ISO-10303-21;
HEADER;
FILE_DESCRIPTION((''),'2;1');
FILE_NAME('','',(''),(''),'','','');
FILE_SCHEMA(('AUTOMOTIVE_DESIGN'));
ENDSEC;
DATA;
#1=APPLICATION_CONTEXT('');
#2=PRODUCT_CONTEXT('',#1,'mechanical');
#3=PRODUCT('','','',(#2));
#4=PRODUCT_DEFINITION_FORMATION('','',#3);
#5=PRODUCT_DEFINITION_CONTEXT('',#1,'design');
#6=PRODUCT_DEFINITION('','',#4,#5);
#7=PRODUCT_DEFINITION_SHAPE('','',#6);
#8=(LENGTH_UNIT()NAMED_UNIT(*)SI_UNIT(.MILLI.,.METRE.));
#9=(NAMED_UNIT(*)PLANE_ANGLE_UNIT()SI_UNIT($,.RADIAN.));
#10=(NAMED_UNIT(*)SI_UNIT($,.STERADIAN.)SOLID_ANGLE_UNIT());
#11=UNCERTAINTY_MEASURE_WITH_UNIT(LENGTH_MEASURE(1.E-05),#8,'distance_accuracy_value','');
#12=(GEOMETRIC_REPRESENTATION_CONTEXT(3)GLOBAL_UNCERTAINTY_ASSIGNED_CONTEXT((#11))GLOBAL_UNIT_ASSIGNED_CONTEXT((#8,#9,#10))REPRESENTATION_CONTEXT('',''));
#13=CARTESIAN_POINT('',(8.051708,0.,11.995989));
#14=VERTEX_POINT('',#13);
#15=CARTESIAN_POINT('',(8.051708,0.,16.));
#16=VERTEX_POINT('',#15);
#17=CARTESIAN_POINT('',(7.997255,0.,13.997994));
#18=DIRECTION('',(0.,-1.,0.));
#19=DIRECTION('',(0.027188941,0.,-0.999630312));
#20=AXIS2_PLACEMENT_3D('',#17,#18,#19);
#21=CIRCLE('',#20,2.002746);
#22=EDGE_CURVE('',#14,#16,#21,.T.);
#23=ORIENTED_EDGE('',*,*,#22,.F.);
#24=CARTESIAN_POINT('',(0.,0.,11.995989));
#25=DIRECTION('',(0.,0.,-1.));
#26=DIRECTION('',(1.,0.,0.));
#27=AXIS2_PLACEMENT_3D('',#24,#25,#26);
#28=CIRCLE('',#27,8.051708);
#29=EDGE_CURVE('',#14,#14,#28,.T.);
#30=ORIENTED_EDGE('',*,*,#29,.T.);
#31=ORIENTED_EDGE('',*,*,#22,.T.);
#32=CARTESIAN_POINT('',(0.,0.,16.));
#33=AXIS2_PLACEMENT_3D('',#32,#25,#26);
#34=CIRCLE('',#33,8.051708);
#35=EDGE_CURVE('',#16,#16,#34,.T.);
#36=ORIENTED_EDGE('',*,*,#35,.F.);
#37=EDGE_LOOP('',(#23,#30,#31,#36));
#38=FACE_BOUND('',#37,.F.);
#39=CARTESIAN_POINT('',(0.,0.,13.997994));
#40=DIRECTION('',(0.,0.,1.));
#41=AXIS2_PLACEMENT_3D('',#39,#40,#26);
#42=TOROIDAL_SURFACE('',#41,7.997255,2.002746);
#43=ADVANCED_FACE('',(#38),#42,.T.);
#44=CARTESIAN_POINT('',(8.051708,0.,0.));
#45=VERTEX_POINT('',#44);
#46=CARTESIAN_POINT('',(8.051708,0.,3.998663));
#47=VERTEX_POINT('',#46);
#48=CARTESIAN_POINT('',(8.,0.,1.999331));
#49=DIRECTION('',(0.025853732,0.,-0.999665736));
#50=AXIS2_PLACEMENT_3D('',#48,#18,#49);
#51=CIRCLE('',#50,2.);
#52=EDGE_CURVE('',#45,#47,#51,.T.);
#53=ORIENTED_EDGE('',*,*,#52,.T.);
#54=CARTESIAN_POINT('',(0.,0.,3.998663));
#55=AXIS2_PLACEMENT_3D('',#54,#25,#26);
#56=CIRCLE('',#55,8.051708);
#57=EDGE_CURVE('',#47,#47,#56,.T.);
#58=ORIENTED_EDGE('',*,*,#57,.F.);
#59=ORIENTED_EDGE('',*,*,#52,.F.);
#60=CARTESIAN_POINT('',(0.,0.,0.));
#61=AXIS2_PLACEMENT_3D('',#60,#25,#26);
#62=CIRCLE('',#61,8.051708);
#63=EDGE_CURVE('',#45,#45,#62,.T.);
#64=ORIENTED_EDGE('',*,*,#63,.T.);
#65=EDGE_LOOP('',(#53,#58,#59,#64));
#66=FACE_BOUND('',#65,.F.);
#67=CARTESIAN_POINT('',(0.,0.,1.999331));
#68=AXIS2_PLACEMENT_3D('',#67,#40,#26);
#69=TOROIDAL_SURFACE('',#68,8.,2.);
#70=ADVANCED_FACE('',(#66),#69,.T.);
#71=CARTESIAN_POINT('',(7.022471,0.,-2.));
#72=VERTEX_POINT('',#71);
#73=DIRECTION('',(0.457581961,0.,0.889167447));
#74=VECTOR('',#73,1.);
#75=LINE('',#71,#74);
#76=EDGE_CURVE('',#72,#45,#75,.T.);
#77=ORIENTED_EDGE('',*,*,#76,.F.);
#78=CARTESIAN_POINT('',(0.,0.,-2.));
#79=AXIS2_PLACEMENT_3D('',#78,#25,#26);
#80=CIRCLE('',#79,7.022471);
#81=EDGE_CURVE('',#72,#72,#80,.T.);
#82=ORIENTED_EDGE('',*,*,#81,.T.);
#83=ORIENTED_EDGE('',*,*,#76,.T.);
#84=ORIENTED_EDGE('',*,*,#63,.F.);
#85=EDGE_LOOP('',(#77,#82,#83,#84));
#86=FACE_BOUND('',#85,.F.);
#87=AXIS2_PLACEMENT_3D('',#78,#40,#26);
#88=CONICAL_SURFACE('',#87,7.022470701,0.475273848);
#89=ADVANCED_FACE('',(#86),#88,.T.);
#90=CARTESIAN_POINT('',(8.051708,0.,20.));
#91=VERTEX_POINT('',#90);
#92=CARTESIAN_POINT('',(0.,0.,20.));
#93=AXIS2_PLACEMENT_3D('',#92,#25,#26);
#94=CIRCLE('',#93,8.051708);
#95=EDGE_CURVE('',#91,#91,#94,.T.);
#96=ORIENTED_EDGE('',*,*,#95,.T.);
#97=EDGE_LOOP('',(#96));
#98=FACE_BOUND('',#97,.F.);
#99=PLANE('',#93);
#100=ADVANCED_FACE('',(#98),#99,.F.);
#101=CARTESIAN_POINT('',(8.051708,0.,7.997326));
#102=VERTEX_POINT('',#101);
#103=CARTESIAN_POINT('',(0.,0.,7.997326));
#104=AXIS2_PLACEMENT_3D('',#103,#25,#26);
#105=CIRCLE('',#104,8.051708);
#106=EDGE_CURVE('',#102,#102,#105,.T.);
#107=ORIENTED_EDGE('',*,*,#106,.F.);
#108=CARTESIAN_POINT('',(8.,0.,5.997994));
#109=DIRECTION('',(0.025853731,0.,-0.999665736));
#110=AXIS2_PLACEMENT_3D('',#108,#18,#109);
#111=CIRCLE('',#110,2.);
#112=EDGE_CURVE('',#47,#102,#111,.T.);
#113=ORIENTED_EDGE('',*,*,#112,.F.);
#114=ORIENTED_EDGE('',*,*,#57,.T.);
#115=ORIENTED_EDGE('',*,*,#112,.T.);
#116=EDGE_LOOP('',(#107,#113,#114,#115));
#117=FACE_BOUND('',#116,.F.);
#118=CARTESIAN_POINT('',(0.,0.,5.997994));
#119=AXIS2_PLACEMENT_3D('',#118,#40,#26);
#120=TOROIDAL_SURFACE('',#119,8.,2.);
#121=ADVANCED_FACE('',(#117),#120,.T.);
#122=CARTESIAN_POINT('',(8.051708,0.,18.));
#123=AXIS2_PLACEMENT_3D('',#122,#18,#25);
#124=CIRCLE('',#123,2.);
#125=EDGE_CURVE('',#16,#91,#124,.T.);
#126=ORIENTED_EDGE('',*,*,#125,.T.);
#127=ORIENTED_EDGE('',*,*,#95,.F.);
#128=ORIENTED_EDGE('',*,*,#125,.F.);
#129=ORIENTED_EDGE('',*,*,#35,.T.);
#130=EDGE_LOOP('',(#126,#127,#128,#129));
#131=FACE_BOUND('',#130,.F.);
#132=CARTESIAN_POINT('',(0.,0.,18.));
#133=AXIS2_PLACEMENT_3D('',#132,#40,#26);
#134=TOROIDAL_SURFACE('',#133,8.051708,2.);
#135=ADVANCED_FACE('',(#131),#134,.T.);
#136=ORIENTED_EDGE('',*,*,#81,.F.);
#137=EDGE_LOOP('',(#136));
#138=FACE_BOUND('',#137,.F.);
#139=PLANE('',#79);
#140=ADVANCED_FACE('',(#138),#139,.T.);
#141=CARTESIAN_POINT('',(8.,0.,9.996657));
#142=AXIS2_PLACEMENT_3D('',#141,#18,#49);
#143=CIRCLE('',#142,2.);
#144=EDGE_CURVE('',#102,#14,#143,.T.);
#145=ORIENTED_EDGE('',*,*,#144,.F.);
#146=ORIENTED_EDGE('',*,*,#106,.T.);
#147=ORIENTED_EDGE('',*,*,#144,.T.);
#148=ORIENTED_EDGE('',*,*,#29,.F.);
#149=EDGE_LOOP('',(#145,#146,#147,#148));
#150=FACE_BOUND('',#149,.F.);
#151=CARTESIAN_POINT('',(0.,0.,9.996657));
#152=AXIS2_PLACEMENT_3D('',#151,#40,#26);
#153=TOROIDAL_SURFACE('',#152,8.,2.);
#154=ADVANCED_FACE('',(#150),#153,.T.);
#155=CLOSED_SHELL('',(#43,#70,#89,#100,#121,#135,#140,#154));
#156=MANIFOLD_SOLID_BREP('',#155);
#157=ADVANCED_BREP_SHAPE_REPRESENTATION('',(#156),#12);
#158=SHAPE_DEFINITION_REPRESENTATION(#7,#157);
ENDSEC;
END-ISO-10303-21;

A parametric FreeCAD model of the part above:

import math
import FreeCAD as App
import Part
import Sketcher
from FreeCAD import Vector
Q = App.Units.Quantity

doc = App.newDocument("Part")
body = doc.addObject("PartDesign::Body", "Body")

sketch1 = body.newObject("Sketcher::SketchObject", "Sketch")
sketch1.AttachmentSupport = (doc.getObject("XZ_Plane"), [""])
sketch1.MapMode = "FlatFace"
sketch1.addGeometry(Part.ArcOfCircle(Part.Circle(Vector(8, 14, 0), Vector(0, 0, 1), 2), math.radians(-88), math.radians(88)), False)
sketch1.addGeometry(Part.ArcOfCircle(Part.Circle(Vector(8.1, 18, 0), Vector(0, 0, 1), 2), math.radians(-90), math.radians(90)), False)
sketch1.addGeometry(Part.LineSegment(Vector(8.1, 20, 0), Vector(0, 20, 0)), False)
sketch1.addGeometry(Part.LineSegment(Vector(0, 20, 0), Vector(0, -2, 0)), False)
sketch1.addGeometry(Part.LineSegment(Vector(0, -2, 0), Vector(7, -2, 0)), False)
sketch1.addGeometry(Part.LineSegment(Vector(7, -2, 0), Vector(8.1, 0, 0)), False)
sketch1.addGeometry(Part.ArcOfCircle(Part.Circle(Vector(8, 2, 0), Vector(0, 0, 1), 2), math.radians(-89), math.radians(89)), False)
sketch1.addGeometry(Part.ArcOfCircle(Part.Circle(Vector(8, 6, 0), Vector(0, 0, 1), 2), math.radians(-89), math.radians(89)), False)
sketch1.addGeometry(Part.ArcOfCircle(Part.Circle(Vector(8, 10, 0), Vector(0, 0, 1), 2), math.radians(-89), math.radians(89)), False)
sketch1.addConstraint(Sketcher.Constraint("Coincident", 0, 2, 1, 1))
sketch1.addConstraint(Sketcher.Constraint("Tangent", 1, 2, 2, 1))
sketch1.addConstraint(Sketcher.Constraint("Coincident", 2, 2, 3, 1))
sketch1.addConstraint(Sketcher.Constraint("Coincident", 3, 2, 4, 1))
sketch1.addConstraint(Sketcher.Constraint("Coincident", 4, 2, 5, 1))
sketch1.addConstraint(Sketcher.Constraint("Coincident", 5, 2, 6, 1))
sketch1.addConstraint(Sketcher.Constraint("Coincident", 6, 2, 7, 1))
sketch1.addConstraint(Sketcher.Constraint("Coincident", 7, 2, 8, 1))
sketch1.addConstraint(Sketcher.Constraint("Coincident", 8, 2, 0, 1))
sketch1.addConstraint(Sketcher.Constraint("Horizontal", 2))
sketch1.addConstraint(Sketcher.Constraint("Vertical", 3))
sketch1.addConstraint(Sketcher.Constraint("Horizontal", 4))
sketch1.addConstraint(Sketcher.Constraint("Equal", 1, 6))
sketch1.addConstraint(Sketcher.Constraint("Equal", 6, 7))
sketch1.addConstraint(Sketcher.Constraint("Equal", 7, 8))
sketch1.addConstraint(Sketcher.Constraint("PointOnObject", 2, 2, -2))
sketch1.addConstraint(Sketcher.Constraint("PointOnObject", 5, 2, -1))
sketch1.addConstraint(Sketcher.Constraint("Vertical", 6, 3, 7, 3))
sketch1.addConstraint(Sketcher.Constraint("Vertical", 7, 3, 8, 3))
sketch1.addConstraint(Sketcher.Constraint("Vertical", 1, 3, 0, 2))
sketch1.addConstraint(Sketcher.Constraint("Vertical", 1, 2, 5, 2))
sketch1.addConstraint(Sketcher.Constraint("Vertical", 5, 2, 6, 2))
sketch1.addConstraint(Sketcher.Constraint("Vertical", 6, 2, 7, 2))
sketch1.addConstraint(Sketcher.Constraint("Vertical", 7, 2, 8, 2))
sketch1.addConstraint(Sketcher.Constraint("Radius", 1, Q("2 mm")))
sketch1.addConstraint(Sketcher.Constraint("DistanceY", 3, 2, 3, 1, Q("22 mm")))
sketch1.addConstraint(Sketcher.Constraint("DistanceY", -1, 1, 1, 3, Q("18 mm")))
sketch1.addConstraint(Sketcher.Constraint("DistanceX", -1, 1, 6, 3, Q("8 mm")))
sketch1.addConstraint(Sketcher.Constraint("Radius", 0, Q("2.002746 mm")))
sketch1.addConstraint(Sketcher.Constraint("DistanceX", 4, 1, 4, 2, Q("7.022471 mm")))
sketch1.addConstraint(Sketcher.Constraint("DistanceX", 2, 2, 2, 1, Q("8.051708 mm")))
revolution = body.newObject("PartDesign::Revolution", "Revolution")
revolution.Profile = sketch1
revolution.ReferenceAxis = (sketch1, ["V_Axis"])
revolution.Angle = 360

doc.recompute()
